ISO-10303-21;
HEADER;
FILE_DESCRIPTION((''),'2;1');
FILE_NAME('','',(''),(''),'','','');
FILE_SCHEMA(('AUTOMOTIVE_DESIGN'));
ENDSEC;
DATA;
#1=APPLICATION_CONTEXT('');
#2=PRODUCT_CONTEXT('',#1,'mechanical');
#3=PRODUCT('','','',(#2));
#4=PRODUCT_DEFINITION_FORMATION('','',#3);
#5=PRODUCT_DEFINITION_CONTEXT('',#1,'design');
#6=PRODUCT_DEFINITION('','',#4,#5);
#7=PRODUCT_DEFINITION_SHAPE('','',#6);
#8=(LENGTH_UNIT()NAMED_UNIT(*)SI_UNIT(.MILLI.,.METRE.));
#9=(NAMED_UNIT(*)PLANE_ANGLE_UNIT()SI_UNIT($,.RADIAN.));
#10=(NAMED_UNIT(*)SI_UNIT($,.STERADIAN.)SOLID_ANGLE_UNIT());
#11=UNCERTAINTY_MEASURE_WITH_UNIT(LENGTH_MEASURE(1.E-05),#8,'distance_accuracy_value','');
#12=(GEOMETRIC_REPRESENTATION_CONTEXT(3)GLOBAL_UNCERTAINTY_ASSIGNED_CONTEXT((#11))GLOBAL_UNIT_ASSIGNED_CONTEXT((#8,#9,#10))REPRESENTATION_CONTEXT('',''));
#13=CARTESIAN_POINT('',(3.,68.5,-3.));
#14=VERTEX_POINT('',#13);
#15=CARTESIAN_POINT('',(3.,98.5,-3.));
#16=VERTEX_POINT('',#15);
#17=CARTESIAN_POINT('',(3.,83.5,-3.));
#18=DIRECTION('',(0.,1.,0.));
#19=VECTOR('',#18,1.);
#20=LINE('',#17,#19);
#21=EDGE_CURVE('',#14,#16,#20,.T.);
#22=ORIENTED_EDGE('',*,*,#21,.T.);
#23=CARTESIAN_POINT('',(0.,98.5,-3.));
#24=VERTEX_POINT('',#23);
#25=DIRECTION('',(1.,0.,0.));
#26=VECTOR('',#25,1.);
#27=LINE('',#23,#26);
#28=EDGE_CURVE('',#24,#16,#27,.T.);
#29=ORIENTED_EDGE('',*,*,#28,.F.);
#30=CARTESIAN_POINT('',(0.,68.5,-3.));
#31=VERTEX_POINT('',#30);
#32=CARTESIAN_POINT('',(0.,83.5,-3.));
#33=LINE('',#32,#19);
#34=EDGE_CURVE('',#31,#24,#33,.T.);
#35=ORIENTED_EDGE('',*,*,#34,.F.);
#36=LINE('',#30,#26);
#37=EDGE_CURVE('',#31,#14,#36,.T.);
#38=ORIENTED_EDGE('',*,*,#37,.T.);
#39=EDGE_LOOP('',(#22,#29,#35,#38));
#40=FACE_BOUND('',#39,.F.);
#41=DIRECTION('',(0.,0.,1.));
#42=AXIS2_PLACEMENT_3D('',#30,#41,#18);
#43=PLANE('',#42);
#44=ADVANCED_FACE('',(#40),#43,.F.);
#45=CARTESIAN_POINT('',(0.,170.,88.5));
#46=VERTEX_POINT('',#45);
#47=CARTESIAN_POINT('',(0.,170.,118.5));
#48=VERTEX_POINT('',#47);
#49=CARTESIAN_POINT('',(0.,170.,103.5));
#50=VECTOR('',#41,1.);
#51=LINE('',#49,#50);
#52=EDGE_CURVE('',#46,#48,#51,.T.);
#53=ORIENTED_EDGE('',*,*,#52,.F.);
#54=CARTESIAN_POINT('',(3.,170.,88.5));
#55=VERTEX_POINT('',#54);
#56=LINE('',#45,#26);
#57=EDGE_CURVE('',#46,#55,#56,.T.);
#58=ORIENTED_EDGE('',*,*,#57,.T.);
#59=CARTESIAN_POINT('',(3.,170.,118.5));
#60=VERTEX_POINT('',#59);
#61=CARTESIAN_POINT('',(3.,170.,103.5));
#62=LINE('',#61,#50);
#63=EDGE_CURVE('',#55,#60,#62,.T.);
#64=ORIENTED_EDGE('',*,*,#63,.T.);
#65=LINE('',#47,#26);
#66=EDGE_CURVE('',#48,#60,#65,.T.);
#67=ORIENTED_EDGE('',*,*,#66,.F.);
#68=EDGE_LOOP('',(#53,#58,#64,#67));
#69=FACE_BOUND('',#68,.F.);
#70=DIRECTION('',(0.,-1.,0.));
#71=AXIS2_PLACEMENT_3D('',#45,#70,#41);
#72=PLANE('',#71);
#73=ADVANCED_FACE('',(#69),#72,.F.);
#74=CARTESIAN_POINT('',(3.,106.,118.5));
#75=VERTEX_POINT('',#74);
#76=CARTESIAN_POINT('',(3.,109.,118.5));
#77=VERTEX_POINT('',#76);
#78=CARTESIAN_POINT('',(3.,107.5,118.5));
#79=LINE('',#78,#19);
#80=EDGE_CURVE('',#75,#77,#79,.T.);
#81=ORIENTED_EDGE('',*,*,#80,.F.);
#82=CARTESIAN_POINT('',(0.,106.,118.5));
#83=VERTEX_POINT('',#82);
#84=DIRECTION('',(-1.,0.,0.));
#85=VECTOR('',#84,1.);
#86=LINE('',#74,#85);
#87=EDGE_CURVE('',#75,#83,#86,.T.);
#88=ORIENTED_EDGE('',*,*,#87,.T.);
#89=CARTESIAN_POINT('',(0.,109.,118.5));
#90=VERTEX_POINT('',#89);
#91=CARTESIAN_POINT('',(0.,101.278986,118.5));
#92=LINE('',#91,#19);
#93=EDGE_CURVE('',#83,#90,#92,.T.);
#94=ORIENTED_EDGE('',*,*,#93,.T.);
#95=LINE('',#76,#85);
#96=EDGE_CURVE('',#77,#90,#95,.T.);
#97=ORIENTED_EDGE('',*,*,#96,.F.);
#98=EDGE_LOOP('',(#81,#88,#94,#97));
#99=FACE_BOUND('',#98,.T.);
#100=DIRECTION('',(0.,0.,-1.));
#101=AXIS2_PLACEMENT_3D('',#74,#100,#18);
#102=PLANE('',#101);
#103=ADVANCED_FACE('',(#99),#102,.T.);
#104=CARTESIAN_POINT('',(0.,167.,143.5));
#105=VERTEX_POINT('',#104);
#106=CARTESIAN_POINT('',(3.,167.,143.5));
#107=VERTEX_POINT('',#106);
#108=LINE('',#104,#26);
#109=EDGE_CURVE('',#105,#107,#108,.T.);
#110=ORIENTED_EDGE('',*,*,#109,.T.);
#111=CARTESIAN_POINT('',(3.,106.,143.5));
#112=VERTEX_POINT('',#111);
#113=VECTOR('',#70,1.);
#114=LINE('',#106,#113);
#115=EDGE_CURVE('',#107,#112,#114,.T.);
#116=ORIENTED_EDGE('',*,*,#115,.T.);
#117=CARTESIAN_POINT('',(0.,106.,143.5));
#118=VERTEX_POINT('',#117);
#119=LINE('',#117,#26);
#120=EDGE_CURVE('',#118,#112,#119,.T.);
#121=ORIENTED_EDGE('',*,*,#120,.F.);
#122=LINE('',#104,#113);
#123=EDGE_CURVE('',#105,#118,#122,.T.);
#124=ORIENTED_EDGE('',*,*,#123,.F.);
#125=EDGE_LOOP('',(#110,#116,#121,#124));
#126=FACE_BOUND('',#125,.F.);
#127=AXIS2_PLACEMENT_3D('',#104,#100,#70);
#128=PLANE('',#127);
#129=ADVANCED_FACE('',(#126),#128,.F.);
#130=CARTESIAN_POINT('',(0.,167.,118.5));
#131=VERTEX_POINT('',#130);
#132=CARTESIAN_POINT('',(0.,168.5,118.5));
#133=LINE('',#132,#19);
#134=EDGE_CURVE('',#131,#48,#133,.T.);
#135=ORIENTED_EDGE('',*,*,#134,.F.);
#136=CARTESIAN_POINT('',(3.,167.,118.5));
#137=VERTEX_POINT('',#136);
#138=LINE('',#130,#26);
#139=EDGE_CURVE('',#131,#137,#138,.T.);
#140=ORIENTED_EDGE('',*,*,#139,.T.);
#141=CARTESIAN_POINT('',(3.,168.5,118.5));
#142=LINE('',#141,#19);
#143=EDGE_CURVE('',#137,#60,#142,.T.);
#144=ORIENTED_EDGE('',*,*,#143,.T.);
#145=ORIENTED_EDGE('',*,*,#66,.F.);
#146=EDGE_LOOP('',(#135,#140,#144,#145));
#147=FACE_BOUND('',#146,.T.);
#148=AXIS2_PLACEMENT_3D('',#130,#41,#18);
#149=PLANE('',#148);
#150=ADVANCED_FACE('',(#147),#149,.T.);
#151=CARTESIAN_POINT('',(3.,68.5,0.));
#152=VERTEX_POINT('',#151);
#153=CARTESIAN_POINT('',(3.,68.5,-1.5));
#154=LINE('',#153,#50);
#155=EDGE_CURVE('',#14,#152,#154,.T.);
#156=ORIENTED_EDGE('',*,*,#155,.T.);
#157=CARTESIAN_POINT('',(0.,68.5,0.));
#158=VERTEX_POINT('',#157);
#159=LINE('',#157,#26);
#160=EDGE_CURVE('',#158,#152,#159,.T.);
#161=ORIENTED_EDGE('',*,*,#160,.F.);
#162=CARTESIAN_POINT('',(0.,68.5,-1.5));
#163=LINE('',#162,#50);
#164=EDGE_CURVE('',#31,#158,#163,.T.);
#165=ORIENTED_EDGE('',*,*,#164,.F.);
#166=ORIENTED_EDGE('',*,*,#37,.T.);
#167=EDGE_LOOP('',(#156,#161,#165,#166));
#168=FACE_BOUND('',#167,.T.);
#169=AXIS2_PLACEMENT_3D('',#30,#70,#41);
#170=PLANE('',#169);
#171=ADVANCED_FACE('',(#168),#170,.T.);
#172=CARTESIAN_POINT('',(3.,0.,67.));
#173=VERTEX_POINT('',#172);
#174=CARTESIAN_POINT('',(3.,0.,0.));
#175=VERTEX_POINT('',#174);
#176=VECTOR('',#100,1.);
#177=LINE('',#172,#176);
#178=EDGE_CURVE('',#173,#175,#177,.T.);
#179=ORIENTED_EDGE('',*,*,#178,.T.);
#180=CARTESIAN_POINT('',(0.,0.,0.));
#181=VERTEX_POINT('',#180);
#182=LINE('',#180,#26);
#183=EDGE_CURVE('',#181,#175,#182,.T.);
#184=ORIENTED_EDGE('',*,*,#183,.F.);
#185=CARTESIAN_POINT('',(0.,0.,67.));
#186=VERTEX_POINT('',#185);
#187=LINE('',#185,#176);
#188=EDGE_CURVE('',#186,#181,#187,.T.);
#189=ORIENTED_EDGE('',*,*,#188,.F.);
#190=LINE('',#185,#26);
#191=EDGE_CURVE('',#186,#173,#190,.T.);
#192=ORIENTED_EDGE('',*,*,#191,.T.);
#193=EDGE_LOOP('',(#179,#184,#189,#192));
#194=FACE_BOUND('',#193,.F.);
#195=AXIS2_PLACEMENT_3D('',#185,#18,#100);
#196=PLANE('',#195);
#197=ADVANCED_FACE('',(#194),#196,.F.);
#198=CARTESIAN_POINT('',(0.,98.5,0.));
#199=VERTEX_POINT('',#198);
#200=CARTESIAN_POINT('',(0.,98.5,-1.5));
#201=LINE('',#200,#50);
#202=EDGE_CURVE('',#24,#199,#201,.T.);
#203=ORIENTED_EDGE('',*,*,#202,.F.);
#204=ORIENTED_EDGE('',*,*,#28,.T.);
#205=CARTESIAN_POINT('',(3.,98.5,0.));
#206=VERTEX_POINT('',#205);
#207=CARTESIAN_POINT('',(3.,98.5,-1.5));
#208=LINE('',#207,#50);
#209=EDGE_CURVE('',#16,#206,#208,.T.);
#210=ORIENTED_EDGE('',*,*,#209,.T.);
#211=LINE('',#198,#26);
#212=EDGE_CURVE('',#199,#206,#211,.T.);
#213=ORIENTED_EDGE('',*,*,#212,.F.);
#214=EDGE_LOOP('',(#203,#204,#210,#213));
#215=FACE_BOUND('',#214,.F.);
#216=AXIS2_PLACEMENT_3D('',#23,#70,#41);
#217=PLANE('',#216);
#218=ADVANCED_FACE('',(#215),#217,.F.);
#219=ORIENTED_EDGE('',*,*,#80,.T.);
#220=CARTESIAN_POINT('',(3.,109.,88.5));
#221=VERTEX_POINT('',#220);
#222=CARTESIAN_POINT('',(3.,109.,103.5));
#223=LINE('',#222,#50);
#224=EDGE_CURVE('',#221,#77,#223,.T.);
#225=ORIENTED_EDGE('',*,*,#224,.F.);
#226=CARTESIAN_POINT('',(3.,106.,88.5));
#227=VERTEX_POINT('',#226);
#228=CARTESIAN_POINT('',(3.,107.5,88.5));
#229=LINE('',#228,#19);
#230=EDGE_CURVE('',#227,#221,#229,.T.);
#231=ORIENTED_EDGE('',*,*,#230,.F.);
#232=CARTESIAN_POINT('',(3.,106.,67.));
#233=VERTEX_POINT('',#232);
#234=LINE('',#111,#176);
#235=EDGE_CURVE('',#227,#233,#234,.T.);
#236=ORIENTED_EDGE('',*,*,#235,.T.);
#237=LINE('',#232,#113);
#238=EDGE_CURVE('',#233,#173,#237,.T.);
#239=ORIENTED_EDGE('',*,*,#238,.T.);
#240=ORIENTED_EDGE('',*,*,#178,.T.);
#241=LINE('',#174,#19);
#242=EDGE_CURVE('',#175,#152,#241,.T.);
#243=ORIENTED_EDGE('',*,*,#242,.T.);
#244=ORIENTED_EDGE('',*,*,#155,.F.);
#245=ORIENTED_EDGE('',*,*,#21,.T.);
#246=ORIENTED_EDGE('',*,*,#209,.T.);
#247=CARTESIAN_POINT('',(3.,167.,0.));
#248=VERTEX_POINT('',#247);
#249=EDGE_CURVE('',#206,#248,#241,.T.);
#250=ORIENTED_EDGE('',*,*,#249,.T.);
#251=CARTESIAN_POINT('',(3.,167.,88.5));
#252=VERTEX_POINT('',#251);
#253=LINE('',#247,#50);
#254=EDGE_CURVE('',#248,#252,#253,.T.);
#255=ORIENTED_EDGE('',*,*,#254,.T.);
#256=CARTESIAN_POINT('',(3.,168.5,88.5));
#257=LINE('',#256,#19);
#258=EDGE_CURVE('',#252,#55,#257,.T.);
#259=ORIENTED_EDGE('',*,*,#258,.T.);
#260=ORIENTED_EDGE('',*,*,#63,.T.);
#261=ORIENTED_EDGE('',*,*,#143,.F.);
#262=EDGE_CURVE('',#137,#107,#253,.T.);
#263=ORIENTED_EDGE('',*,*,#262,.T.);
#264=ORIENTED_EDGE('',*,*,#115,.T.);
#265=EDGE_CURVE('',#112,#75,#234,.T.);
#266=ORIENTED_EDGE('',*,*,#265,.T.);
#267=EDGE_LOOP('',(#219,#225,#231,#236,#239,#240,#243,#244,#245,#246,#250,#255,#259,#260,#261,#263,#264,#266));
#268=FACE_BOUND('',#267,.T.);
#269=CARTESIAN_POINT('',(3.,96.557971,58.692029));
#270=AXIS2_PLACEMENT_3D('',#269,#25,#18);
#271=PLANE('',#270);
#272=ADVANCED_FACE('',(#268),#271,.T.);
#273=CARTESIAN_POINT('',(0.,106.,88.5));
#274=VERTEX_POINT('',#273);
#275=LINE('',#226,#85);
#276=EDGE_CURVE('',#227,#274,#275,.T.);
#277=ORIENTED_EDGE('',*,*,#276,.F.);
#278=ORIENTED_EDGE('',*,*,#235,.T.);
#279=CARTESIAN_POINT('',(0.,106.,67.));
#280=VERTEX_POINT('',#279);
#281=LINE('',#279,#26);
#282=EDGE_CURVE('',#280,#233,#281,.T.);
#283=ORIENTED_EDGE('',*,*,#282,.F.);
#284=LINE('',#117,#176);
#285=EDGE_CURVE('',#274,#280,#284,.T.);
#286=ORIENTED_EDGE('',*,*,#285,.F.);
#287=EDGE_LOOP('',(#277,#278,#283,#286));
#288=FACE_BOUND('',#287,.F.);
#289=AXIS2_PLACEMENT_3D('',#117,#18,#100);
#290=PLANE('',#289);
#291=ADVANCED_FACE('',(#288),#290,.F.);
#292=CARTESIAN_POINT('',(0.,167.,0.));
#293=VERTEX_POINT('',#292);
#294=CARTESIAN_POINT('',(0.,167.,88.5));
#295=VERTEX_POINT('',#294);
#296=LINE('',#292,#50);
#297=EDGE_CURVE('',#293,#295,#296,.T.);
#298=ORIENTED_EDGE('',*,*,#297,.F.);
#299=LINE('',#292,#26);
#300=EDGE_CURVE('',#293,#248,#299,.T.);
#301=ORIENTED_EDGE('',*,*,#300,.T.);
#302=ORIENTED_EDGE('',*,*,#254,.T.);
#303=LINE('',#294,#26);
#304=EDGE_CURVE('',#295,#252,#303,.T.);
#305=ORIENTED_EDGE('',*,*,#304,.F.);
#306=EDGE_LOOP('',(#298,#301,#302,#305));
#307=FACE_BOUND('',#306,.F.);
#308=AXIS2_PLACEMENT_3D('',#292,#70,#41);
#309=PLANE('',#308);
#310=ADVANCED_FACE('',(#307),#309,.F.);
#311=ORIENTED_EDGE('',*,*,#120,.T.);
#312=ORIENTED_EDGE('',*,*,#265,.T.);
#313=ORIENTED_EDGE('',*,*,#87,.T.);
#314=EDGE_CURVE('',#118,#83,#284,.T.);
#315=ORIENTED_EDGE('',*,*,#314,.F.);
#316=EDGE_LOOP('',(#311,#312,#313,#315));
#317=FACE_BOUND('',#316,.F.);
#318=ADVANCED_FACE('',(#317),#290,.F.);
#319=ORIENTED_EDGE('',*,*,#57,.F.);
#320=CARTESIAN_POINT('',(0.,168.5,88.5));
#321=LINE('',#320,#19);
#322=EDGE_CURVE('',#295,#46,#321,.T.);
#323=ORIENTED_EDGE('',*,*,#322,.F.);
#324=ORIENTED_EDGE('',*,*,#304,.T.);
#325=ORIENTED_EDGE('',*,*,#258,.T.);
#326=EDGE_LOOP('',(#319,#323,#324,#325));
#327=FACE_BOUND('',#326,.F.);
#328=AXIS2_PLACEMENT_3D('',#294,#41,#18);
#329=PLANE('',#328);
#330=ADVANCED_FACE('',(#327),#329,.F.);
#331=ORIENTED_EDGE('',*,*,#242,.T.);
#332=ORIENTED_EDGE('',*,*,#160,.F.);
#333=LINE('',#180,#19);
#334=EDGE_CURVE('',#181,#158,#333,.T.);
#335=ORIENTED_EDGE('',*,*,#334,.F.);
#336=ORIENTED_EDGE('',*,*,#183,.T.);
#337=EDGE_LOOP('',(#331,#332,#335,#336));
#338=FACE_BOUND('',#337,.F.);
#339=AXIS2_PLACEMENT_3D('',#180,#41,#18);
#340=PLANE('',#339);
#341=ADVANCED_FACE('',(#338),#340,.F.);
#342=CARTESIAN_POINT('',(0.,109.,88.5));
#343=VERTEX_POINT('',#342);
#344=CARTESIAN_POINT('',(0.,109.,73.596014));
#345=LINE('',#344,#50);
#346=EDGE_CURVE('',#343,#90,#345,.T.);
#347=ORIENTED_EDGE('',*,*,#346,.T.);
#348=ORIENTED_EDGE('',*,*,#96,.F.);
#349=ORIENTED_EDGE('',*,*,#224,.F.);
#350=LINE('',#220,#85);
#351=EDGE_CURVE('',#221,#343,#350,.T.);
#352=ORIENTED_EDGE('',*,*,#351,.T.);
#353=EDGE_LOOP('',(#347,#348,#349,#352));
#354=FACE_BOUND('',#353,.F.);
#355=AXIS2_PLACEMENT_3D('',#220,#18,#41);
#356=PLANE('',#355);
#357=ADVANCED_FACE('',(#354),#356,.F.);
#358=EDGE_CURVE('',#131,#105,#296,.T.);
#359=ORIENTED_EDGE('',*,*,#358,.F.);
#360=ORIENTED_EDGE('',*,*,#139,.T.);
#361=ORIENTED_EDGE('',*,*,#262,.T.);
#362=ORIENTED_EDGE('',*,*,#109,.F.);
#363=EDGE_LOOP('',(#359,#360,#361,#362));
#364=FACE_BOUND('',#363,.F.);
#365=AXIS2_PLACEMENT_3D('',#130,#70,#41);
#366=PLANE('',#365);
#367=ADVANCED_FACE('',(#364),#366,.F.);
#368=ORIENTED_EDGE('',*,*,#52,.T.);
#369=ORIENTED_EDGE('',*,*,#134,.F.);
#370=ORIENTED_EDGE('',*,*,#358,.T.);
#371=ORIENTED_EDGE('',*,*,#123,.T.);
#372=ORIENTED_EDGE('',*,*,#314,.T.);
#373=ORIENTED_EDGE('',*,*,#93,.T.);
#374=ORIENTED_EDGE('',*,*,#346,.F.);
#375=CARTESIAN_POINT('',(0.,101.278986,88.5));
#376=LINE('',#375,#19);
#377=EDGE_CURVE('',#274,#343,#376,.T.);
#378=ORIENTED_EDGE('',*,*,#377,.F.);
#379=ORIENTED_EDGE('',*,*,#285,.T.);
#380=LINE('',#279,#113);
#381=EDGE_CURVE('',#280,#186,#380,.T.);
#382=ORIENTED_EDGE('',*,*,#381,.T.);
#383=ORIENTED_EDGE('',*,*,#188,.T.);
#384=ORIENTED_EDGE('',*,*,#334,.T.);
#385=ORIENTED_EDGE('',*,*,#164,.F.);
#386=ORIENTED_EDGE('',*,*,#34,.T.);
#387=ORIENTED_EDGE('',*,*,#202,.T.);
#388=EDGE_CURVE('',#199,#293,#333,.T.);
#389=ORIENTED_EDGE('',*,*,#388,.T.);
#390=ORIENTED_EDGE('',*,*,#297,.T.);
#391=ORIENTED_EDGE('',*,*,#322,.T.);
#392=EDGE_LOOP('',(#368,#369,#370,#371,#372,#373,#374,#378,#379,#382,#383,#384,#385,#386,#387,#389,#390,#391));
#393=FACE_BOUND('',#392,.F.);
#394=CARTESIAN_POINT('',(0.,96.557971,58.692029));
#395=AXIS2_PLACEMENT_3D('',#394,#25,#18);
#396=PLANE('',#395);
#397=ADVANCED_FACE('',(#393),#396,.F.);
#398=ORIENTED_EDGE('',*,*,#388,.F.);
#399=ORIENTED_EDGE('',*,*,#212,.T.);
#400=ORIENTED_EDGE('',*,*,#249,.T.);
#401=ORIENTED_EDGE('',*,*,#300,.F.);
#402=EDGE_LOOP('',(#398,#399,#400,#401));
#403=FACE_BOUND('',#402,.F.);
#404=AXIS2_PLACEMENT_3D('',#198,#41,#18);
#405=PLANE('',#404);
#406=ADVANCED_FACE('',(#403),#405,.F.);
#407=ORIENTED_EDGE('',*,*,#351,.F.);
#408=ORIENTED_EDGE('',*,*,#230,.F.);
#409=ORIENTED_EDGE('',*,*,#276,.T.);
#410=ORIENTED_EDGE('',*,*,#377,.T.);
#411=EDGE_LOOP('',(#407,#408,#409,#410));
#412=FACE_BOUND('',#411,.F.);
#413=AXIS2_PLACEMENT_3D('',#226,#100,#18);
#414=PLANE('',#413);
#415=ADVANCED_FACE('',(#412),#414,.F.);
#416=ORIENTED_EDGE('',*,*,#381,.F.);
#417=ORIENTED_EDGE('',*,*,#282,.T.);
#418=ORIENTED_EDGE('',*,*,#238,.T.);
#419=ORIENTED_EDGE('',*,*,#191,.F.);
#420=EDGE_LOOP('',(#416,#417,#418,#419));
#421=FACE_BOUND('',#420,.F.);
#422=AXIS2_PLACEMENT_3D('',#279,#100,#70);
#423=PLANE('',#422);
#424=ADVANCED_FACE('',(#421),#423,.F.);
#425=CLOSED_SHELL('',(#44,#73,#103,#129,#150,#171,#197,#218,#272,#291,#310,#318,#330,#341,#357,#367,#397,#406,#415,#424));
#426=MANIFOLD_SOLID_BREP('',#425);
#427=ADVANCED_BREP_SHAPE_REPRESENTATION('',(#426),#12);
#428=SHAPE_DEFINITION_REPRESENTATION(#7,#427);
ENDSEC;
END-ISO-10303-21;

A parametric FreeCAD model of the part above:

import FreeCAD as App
import Part
import Sketcher
from FreeCAD import Vector
Q = App.Units.Quantity

doc = App.newDocument("Part")
params = doc.addObject("Spreadsheet::Sheet", "Params")
for row, (alias, value) in enumerate([
    ("sketch1_width", "30 mm"),
    ("sketch1_width2", "3 mm"),
    ("sketch1_width3", "61 mm"),
    ("sketch1_width4", "106 mm"),
    ("sketch1_height", "67 mm"),
    ("pad1_length", "3 mm"),
    ("sketch2_width", "3 mm"),
    ("sketch2_height", "30 mm"),
    ("pocket1_length", "25 mm"),
], start=1):
    params.set(f"A{row}", alias)
    params.set(f"B{row}", "=" + value)
    params.setAlias(f"B{row}", alias)

body = doc.addObject("PartDesign::Body", "Body")

sketch1 = doc.addObject("Sketcher::SketchObject", "Sketch")
body.addObject(sketch1)
sketch1.AttachmentSupport = (doc.YZ_Plane, [""])
sketch1.MapMode = "FlatFace"
sketch1.addGeometry([
    Part.LineSegment(Vector(0, 67, 0), Vector(0, 0, 0)),
    Part.LineSegment(Vector(0, 0, 0), Vector(68.5, 0, 0)),
    Part.LineSegment(Vector(68.5, 0, 0), Vector(68.5, -3, 0)),
    Part.LineSegment(Vector(68.5, -3, 0), Vector(98.5, -3, 0)),
    Part.LineSegment(Vector(98.5, -3, 0), Vector(98.5, 0, 0)),
    Part.LineSegment(Vector(98.5, 0, 0), Vector(167, 0, 0)),
    Part.LineSegment(Vector(167, 0, 0), Vector(167, 88.5, 0)),
    Part.LineSegment(Vector(167, 88.5, 0), Vector(170, 88.5, 0)),
    Part.LineSegment(Vector(170, 88.5, 0), Vector(170, 118.5, 0)),
    Part.LineSegment(Vector(170, 118.5, 0), Vector(167, 118.5, 0)),
    Part.LineSegment(Vector(167, 118.5, 0), Vector(167, 143.5, 0)),
    Part.LineSegment(Vector(167, 143.5, 0), Vector(106, 143.5, 0)),
    Part.LineSegment(Vector(106, 143.5, 0), Vector(106, 67, 0)),
    Part.LineSegment(Vector(106, 67, 0), Vector(0, 67, 0)),
], False)
sketch1.addConstraint([
    Sketcher.Constraint("Coincident", 0, 2, 1, 1),
    Sketcher.Constraint("Coincident", 1, 2, 2, 1),
    Sketcher.Constraint("Coincident", 2, 2, 3, 1),
    Sketcher.Constraint("Coincident", 3, 2, 4, 1),
    Sketcher.Constraint("Coincident", 4, 2, 5, 1),
    Sketcher.Constraint("Coincident", 5, 2, 6, 1),
    Sketcher.Constraint("Coincident", 6, 2, 7, 1),
    Sketcher.Constraint("Coincident", 7, 2, 8, 1),
    Sketcher.Constraint("Coincident", 8, 2, 9, 1),
    Sketcher.Constraint("Coincident", 9, 2, 10, 1),
    Sketcher.Constraint("Coincident", 10, 2, 11, 1),
    Sketcher.Constraint("Coincident", 11, 2, 12, 1),
    Sketcher.Constraint("Coincident", 12, 2, 13, 1),
    Sketcher.Constraint("Coincident", 13, 2, 0, 1),
    Sketcher.Constraint("Vertical", 0),
    Sketcher.Constraint("Horizontal", 1),
    Sketcher.Constraint("Vertical", 2),
    Sketcher.Constraint("Horizontal", 3),
    Sketcher.Constraint("Vertical", 4),
    Sketcher.Constraint("Horizontal", 5),
    Sketcher.Constraint("Vertical", 6),
    Sketcher.Constraint("Horizontal", 7),
    Sketcher.Constraint("Vertical", 8),
    Sketcher.Constraint("Horizontal", 9),
    Sketcher.Constraint("Vertical", 10),
    Sketcher.Constraint("Horizontal", 11),
    Sketcher.Constraint("Vertical", 12),
    Sketcher.Constraint("Horizontal", 13),
    Sketcher.Constraint("Coincident", 0, 2, -1, 1),
    Sketcher.Constraint("PointOnObject", 4, 2, -1),
    Sketcher.Constraint("Vertical", 6, 2, 9, 2),
    Sketcher.Constraint("Equal", 1, 5),
    Sketcher.Constraint("Equal", 9, 2),
    Sketcher.Constraint("Equal", 3, 8),
    Sketcher.Constraint("DistanceX", 3, 1, 3, 2, Q("30 mm")),
    Sketcher.Constraint("DistanceX", 7, 1, 7, 2, Q("3 mm")),
    Sketcher.Constraint("DistanceX", 11, 2, 11, 1, Q("61 mm")),
    Sketcher.Constraint("DistanceX", 13, 2, 13, 1, Q("106 mm")),
    Sketcher.Constraint("DistanceY", 0, 2, 0, 1, Q("67 mm")),
    Sketcher.Constraint("DistanceY", 10, 1, 10, 2, Q("25 mm")),
    Sketcher.Constraint("DistanceY", 6, 1, 6, 2, Q("88.5 mm")),
])
sketch1.setExpression("Constraints[34]", "Params.sketch1_width")
sketch1.setExpression("Constraints[35]", "Params.sketch1_width2")
sketch1.setExpression("Constraints[36]", "Params.sketch1_width3")
sketch1.setExpression("Constraints[37]", "Params.sketch1_width4")
sketch1.setExpression("Constraints[38]", "Params.sketch1_height")
pad1 = doc.addObject("PartDesign::Pad", "Pad")
body.addObject(pad1)
pad1.Profile = sketch1
pad1.setExpression("Length", "Params.pad1_length")

sketch2 = doc.addObject("Sketcher::SketchObject", "Sketch001")
body.addObject(sketch2)
sketch2.AttachmentSupport = (doc.YZ_Plane, [""])
sketch2.MapMode = "FlatFace"
sketch2.AttachmentOffset = App.Placement(Vector(0, 0, 3), App.Rotation())
sketch2.addGeometry([
    Part.LineSegment(Vector(106, 118.5, 0), Vector(106, 88.5, 0)),
    Part.LineSegment(Vector(106, 88.5, 0), Vector(109, 88.5, 0)),
    Part.LineSegment(Vector(109, 88.5, 0), Vector(109, 118.5, 0)),
    Part.LineSegment(Vector(109, 118.5, 0), Vector(106, 118.5, 0)),
], False)
sketch2.addConstraint([
    Sketcher.Constraint("Coincident", 0, 2, 1, 1),
    Sketcher.Constraint("Coincident", 1, 2, 2, 1),
    Sketcher.Constraint("Coincident", 2, 2, 3, 1),
    Sketcher.Constraint("Coincident", 3, 2, 0, 1),
    Sketcher.Constraint("Vertical", 0),
    Sketcher.Constraint("Horizontal", 1),
    Sketcher.Constraint("Vertical", 2),
    Sketcher.Constraint("Horizontal", 3),
    Sketcher.Constraint("DistanceX", 1, 1, 1, 2, Q("3 mm")),
    Sketcher.Constraint("DistanceY", 0, 2, 0, 1, Q("30 mm")),
    Sketcher.Constraint("DistanceX", -1, 1, 0, 2, Q("106 mm")),
    Sketcher.Constraint("DistanceY", -1, 1, 0, 2, Q("88.5 mm")),
])
sketch2.setExpression("Constraints[8]", "Params.sketch2_width")
sketch2.setExpression("Constraints[9]", "Params.sketch2_height")
pocket1 = doc.addObject("PartDesign::Pocket", "Pocket")
body.addObject(pocket1)
pocket1.Profile = sketch2
pocket1.setExpression("Length", "Params.pocket1_length")

doc.recompute()
